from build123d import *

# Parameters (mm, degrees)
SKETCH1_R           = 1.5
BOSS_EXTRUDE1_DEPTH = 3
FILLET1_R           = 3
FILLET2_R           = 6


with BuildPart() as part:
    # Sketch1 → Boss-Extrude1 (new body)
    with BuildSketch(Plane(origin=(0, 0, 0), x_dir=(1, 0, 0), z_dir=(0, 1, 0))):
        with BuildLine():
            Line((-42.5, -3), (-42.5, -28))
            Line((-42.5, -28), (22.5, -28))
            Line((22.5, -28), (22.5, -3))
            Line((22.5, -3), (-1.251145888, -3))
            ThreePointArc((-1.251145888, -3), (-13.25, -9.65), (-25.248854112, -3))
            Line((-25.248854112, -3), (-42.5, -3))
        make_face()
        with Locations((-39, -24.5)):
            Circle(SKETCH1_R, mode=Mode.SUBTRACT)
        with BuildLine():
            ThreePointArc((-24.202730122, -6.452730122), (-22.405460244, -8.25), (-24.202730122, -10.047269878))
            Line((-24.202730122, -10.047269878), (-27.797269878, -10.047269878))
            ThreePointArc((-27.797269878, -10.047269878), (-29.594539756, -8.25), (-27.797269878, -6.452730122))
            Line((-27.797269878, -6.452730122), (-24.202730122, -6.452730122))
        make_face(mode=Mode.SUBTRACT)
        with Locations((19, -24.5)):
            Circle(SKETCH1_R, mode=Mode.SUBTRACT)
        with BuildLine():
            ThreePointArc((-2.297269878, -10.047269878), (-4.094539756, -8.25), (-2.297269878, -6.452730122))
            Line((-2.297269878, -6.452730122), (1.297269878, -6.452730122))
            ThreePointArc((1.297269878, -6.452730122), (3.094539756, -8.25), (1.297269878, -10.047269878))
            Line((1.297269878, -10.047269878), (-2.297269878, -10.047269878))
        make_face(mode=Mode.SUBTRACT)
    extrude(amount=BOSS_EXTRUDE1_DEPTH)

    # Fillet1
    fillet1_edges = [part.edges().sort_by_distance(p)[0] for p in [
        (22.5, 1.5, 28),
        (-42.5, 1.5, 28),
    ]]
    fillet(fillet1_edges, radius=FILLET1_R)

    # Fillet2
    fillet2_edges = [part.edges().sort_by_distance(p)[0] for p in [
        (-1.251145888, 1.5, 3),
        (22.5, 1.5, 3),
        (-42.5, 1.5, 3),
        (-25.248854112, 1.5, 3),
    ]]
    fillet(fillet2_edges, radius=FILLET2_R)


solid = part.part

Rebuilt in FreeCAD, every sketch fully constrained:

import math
import FreeCAD as App
import Part
import Sketcher
from FreeCAD import Vector
Q = App.Units.Quantity


def edges_at(feature, points):
    """Names of the edges that pass closest to the given points."""
    edges = feature.Shape.Edges
    near = lambda p: min(range(len(edges)), key=lambda i: edges[i].distToShape(Part.Vertex(*p))[0])
    return sorted({f"Edge{near(p) + 1}" for p in points})

doc = App.newDocument("Part")
body = doc.addObject("PartDesign::Body", "Body")

# Sketch on XZ plane
sketch1 = body.newObject("Sketcher::SketchObject", "Sketch")
sketch1.AttachmentSupport = (doc.getObject("XZ_Plane"), [""])
sketch1.MapMode = "FlatFace"
sketch1.addGeometry(Part.LineSegment(Vector(-42.5, 3, 0), Vector(-42.5, 28, 0)), False)
sketch1.addGeometry(Part.LineSegment(Vector(-42.5, 28, 0), Vector(22.5, 28, 0)), False)
sketch1.addGeometry(Part.LineSegment(Vector(22.5, 28, 0), Vector(22.5, 3, 0)), False)
sketch1.addGeometry(Part.LineSegment(Vector(22.5, 3, 0), Vector(-1.3, 3, 0)), False)
sketch1.addGeometry(Part.ArcOfCircle(Part.Circle(Vector(-13.2, -4.5, 0), Vector(0, 0, 1), 14.2), math.radians(32), math.radians(148)), False)
sketch1.addGeometry(Part.LineSegment(Vector(-25.2, 3, 0), Vector(-42.5, 3, 0)), False)
sketch1.addGeometry(Part.Circle(Vector(-39, 24.5, 0), Vector(0, 0, 1), 1.5), False)
sketch1.addGeometry(Part.Circle(Vector(19, 24.5, 0), Vector(0, 0, 1), 1.5), False)
sketch1.addGeometry(Part.LineSegment(Vector(-27.8, 6.5, 0), Vector(-24.2, 6.5, 0)), False)
sketch1.addGeometry(Part.ArcOfCircle(Part.Circle(Vector(-24.2, 8.2, 0), Vector(0, 0, 1), 1.8), math.radians(-90), math.radians(90)), False)
sketch1.addGeometry(Part.LineSegment(Vector(-24.2, 10, 0), Vector(-27.8, 10, 0)), False)
sketch1.addGeometry(Part.ArcOfCircle(Part.Circle(Vector(-27.8, 8.2, 0), Vector(0, 0, 1), 1.8), math.radians(90), math.radians(270)), False)
sketch1.addGeometry(Part.LineSegment(Vector(1.3, 10, 0), Vector(-2.3, 10, 0)), False)
sketch1.addGeometry(Part.ArcOfCircle(Part.Circle(Vector(-2.3, 8.2, 0), Vector(0, 0, 1), 1.8), math.radians(90), math.radians(270)), False)
sketch1.addGeometry(Part.LineSegment(Vector(-2.3, 6.5, 0), Vector(1.3, 6.5, 0)), False)
sketch1.addGeometry(Part.ArcOfCircle(Part.Circle(Vector(1.3, 8.2, 0), Vector(0, 0, 1), 1.8), math.radians(-90), math.radians(90)), False)
sketch1.addConstraint(Sketcher.Constraint("Coincident", 0, 2, 1, 1))
sketch1.addConstraint(Sketcher.Constraint("Coincident", 1, 2, 2, 1))
sketch1.addConstraint(Sketcher.Constraint("Coincident", 2, 2, 3, 1))
sketch1.addConstraint(Sketcher.Constraint("Coincident", 3, 2, 4, 1))
sketch1.addConstraint(Sketcher.Constraint("Coincident", 4, 2, 5, 1))
sketch1.addConstraint(Sketcher.Constraint("Coincident", 5, 2, 0, 1))
sketch1.addConstraint(Sketcher.Constraint("Tangent", 8, 2, 9, 1))
sketch1.addConstraint(Sketcher.Constraint("Tangent", 9, 2, 10, 1))
sketch1.addConstraint(Sketcher.Constraint("Tangent", 10, 2, 11, 1))
sketch1.addConstraint(Sketcher.Constraint("Tangent", 11, 2, 8, 1))
sketch1.addConstraint(Sketcher.Constraint("Tangent", 12, 2, 13, 1))
sketch1.addConstraint(Sketcher.Constraint("Tangent", 13, 2, 14, 1))
sketch1.addConstraint(Sketcher.Constraint("Tangent", 14, 2, 15, 1))
sketch1.addConstraint(Sketcher.Constraint("Tangent", 15, 2, 12, 1))
sketch1.addConstraint(Sketcher.Constraint("Vertical", 0))
sketch1.addConstraint(Sketcher.Constraint("Horizontal", 1))
sketch1.addConstraint(Sketcher.Constraint("Vertical", 2))
sketch1.addConstraint(Sketcher.Constraint("Horizontal", 3))
sketch1.addConstraint(Sketcher.Constraint("Horizontal", 5))
sketch1.addConstraint(Sketcher.Constraint("Horizontal", 8))
sketch1.addConstraint(Sketcher.Constraint("Horizontal", 10))
sketch1.addConstraint(Sketcher.Constraint("Horizontal", 12))
sketch1.addConstraint(Sketcher.Constraint("Horizontal", 14))
sketch1.addConstraint(Sketcher.Constraint("Equal", 6, 7))
sketch1.addConstraint(Sketcher.Constraint("Equal", 11, 13))
sketch1.addConstraint(Sketcher.Constraint("Horizontal", 6, 3, 7, 3))
sketch1.addConstraint(Sketcher.Constraint("Horizontal", 11, 3, 13, 3))
sketch1.addConstraint(Sketcher.Constraint("Horizontal", 3, 2, 4, 2))
sketch1.addConstraint(Sketcher.Constraint("Equal", 10, 12))
sketch1.addConstraint(Sketcher.Constraint("Diameter", 6, Q("3 mm")))
sketch1.addConstraint(Sketcher.Constraint("DistanceX", 1, 1, 1, 2, Q("65 mm")))
sketch1.addConstraint(Sketcher.Constraint("DistanceY", 0, 1, 0, 2, Q("25 mm")))
sketch1.addConstraint(Sketcher.Constraint("Radius", 4, Q("14.15 mm")))
sketch1.addConstraint(Sketcher.Constraint("DistanceX", 6, 3, -1, 1, Q("39 mm")))
sketch1.addConstraint(Sketcher.Constraint("DistanceX", -1, 1, 7, 3, Q("19 mm")))
sketch1.addConstraint(Sketcher.Constraint("DistanceY", -1, 1, 0, 2, Q("28 mm")))
sketch1.addConstraint(Sketcher.Constraint("DistanceY", 4, 3, 6, 3, Q("29 mm")))
sketch1.addConstraint(Sketcher.Constraint("DistanceY", 4, 3, -1, 1, Q("4.5 mm")))
sketch1.addConstraint(Sketcher.Constraint("DistanceX", 0, 2, -1, 1, Q("42.5 mm")))
sketch1.addConstraint(Sketcher.Constraint("DistanceX", 11, 3, 13, 3, Q("25.5 mm")))
sketch1.addConstraint(Sketcher.Constraint("DistanceX", 4, 3, -1, 1, Q("13.25 mm")))
sketch1.addConstraint(Sketcher.Constraint("DistanceY", -1, 1, 9, 3, Q("8.25 mm")))
sketch1.addConstraint(Sketcher.Constraint("Radius", 9, Q("1.79727 mm")))
sketch1.addConstraint(Sketcher.Constraint("DistanceX", 8, 1, 8, 2, Q("3.59454 mm")))
sketch1.addConstraint(Sketcher.Constraint("DistanceX", 9, 3, -1, 1, Q("24.20273 mm")))
pad1 = body.newObject("PartDesign::Pad", "Pad")
pad1.Profile = sketch1
pad1.Length = 3
pad1.Reversed = True
doc.recompute()

fillet = body.newObject("PartDesign::Fillet", "Fillet")
fillet.Base = (pad1, edges_at(pad1, [(22.5, 1.5, 28), (-42.5, 1.5, 28)]))
fillet.Radius = 3
doc.recompute()

fillet2 = body.newObject("PartDesign::Fillet", "Fillet001")
fillet2.Base = (fillet, edges_at(fillet, [
    (-1.251, 1.5, 3),
    (22.5, 1.5, 3),
    (-42.5, 1.5, 3),
    (-25.249, 1.5, 3),
]))
fillet2.Radius = 6

doc.recompute()
